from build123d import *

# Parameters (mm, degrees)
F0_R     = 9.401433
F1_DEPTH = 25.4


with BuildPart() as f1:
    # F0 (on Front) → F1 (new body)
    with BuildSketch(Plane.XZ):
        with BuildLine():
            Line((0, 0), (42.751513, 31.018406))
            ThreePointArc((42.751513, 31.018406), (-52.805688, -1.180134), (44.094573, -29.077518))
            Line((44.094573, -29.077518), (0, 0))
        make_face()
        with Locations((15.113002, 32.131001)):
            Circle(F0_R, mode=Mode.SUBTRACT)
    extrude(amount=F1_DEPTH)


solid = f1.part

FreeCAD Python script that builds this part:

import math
import FreeCAD as App
import Part
import Sketcher
Q = App.Units.Quantity

doc = App.newDocument("Part")
body = doc.addObject("PartDesign::Body", "Body")

# Sketch on XZ plane
sketch1 = body.newObject("Sketcher::SketchObject", "Sketch")
sketch1.AttachmentSupport = (doc.getObject("XZ_Plane"), [""])
sketch1.MapMode = "FlatFace"
sketch1.addGeometry([
    Part.LineSegment(App.Vector(0, 0, 0), App.Vector(43, 31, 0)),
    Part.ArcOfCircle(Part.Circle(App.Vector(0, 0, 0), App.Vector(0, 0, 1), 53), math.radians(36), math.radians(327)),
    Part.LineSegment(App.Vector(44, -29, 0), App.Vector(0, 0, 0)),
    Part.Circle(App.Vector(15, 32, 0), App.Vector(0, 0, 1), 9),
], False)
sketch1.addConstraint([
    Sketcher.Constraint("Coincident", 0, 2, 1, 1),
    Sketcher.Constraint("Coincident", 1, 2, 2, 1),
    Sketcher.Constraint("Coincident", 2, 2, 0, 1),
    Sketcher.Constraint("Coincident", 1, 3, -1, 1),
    Sketcher.Constraint("Coincident", 2, 2, -1, 1),
    Sketcher.Constraint("DistanceX", -1, 1, 3, 3, Q("0.5950001 in")),
    Sketcher.Constraint("DistanceY", -1, 1, 3, 3, Q("1.265 in")),
    Sketcher.Constraint("Diameter", 3, Q("18.802866 mm")),
    Sketcher.Constraint("Radius", 1, Q("52.818874 mm")),
    Sketcher.Constraint("DistanceY", 1, 2, -1, 1, Q("29.077518 mm")),
    Sketcher.Constraint("DistanceX", 3, 3, 0, 2, Q("27.638511 mm")),
])
pad1 = body.newObject("PartDesign::Pad", "Pad")
pad1.Profile = sketch1
pad1.Length = Q("1 in")

doc.recompute()
